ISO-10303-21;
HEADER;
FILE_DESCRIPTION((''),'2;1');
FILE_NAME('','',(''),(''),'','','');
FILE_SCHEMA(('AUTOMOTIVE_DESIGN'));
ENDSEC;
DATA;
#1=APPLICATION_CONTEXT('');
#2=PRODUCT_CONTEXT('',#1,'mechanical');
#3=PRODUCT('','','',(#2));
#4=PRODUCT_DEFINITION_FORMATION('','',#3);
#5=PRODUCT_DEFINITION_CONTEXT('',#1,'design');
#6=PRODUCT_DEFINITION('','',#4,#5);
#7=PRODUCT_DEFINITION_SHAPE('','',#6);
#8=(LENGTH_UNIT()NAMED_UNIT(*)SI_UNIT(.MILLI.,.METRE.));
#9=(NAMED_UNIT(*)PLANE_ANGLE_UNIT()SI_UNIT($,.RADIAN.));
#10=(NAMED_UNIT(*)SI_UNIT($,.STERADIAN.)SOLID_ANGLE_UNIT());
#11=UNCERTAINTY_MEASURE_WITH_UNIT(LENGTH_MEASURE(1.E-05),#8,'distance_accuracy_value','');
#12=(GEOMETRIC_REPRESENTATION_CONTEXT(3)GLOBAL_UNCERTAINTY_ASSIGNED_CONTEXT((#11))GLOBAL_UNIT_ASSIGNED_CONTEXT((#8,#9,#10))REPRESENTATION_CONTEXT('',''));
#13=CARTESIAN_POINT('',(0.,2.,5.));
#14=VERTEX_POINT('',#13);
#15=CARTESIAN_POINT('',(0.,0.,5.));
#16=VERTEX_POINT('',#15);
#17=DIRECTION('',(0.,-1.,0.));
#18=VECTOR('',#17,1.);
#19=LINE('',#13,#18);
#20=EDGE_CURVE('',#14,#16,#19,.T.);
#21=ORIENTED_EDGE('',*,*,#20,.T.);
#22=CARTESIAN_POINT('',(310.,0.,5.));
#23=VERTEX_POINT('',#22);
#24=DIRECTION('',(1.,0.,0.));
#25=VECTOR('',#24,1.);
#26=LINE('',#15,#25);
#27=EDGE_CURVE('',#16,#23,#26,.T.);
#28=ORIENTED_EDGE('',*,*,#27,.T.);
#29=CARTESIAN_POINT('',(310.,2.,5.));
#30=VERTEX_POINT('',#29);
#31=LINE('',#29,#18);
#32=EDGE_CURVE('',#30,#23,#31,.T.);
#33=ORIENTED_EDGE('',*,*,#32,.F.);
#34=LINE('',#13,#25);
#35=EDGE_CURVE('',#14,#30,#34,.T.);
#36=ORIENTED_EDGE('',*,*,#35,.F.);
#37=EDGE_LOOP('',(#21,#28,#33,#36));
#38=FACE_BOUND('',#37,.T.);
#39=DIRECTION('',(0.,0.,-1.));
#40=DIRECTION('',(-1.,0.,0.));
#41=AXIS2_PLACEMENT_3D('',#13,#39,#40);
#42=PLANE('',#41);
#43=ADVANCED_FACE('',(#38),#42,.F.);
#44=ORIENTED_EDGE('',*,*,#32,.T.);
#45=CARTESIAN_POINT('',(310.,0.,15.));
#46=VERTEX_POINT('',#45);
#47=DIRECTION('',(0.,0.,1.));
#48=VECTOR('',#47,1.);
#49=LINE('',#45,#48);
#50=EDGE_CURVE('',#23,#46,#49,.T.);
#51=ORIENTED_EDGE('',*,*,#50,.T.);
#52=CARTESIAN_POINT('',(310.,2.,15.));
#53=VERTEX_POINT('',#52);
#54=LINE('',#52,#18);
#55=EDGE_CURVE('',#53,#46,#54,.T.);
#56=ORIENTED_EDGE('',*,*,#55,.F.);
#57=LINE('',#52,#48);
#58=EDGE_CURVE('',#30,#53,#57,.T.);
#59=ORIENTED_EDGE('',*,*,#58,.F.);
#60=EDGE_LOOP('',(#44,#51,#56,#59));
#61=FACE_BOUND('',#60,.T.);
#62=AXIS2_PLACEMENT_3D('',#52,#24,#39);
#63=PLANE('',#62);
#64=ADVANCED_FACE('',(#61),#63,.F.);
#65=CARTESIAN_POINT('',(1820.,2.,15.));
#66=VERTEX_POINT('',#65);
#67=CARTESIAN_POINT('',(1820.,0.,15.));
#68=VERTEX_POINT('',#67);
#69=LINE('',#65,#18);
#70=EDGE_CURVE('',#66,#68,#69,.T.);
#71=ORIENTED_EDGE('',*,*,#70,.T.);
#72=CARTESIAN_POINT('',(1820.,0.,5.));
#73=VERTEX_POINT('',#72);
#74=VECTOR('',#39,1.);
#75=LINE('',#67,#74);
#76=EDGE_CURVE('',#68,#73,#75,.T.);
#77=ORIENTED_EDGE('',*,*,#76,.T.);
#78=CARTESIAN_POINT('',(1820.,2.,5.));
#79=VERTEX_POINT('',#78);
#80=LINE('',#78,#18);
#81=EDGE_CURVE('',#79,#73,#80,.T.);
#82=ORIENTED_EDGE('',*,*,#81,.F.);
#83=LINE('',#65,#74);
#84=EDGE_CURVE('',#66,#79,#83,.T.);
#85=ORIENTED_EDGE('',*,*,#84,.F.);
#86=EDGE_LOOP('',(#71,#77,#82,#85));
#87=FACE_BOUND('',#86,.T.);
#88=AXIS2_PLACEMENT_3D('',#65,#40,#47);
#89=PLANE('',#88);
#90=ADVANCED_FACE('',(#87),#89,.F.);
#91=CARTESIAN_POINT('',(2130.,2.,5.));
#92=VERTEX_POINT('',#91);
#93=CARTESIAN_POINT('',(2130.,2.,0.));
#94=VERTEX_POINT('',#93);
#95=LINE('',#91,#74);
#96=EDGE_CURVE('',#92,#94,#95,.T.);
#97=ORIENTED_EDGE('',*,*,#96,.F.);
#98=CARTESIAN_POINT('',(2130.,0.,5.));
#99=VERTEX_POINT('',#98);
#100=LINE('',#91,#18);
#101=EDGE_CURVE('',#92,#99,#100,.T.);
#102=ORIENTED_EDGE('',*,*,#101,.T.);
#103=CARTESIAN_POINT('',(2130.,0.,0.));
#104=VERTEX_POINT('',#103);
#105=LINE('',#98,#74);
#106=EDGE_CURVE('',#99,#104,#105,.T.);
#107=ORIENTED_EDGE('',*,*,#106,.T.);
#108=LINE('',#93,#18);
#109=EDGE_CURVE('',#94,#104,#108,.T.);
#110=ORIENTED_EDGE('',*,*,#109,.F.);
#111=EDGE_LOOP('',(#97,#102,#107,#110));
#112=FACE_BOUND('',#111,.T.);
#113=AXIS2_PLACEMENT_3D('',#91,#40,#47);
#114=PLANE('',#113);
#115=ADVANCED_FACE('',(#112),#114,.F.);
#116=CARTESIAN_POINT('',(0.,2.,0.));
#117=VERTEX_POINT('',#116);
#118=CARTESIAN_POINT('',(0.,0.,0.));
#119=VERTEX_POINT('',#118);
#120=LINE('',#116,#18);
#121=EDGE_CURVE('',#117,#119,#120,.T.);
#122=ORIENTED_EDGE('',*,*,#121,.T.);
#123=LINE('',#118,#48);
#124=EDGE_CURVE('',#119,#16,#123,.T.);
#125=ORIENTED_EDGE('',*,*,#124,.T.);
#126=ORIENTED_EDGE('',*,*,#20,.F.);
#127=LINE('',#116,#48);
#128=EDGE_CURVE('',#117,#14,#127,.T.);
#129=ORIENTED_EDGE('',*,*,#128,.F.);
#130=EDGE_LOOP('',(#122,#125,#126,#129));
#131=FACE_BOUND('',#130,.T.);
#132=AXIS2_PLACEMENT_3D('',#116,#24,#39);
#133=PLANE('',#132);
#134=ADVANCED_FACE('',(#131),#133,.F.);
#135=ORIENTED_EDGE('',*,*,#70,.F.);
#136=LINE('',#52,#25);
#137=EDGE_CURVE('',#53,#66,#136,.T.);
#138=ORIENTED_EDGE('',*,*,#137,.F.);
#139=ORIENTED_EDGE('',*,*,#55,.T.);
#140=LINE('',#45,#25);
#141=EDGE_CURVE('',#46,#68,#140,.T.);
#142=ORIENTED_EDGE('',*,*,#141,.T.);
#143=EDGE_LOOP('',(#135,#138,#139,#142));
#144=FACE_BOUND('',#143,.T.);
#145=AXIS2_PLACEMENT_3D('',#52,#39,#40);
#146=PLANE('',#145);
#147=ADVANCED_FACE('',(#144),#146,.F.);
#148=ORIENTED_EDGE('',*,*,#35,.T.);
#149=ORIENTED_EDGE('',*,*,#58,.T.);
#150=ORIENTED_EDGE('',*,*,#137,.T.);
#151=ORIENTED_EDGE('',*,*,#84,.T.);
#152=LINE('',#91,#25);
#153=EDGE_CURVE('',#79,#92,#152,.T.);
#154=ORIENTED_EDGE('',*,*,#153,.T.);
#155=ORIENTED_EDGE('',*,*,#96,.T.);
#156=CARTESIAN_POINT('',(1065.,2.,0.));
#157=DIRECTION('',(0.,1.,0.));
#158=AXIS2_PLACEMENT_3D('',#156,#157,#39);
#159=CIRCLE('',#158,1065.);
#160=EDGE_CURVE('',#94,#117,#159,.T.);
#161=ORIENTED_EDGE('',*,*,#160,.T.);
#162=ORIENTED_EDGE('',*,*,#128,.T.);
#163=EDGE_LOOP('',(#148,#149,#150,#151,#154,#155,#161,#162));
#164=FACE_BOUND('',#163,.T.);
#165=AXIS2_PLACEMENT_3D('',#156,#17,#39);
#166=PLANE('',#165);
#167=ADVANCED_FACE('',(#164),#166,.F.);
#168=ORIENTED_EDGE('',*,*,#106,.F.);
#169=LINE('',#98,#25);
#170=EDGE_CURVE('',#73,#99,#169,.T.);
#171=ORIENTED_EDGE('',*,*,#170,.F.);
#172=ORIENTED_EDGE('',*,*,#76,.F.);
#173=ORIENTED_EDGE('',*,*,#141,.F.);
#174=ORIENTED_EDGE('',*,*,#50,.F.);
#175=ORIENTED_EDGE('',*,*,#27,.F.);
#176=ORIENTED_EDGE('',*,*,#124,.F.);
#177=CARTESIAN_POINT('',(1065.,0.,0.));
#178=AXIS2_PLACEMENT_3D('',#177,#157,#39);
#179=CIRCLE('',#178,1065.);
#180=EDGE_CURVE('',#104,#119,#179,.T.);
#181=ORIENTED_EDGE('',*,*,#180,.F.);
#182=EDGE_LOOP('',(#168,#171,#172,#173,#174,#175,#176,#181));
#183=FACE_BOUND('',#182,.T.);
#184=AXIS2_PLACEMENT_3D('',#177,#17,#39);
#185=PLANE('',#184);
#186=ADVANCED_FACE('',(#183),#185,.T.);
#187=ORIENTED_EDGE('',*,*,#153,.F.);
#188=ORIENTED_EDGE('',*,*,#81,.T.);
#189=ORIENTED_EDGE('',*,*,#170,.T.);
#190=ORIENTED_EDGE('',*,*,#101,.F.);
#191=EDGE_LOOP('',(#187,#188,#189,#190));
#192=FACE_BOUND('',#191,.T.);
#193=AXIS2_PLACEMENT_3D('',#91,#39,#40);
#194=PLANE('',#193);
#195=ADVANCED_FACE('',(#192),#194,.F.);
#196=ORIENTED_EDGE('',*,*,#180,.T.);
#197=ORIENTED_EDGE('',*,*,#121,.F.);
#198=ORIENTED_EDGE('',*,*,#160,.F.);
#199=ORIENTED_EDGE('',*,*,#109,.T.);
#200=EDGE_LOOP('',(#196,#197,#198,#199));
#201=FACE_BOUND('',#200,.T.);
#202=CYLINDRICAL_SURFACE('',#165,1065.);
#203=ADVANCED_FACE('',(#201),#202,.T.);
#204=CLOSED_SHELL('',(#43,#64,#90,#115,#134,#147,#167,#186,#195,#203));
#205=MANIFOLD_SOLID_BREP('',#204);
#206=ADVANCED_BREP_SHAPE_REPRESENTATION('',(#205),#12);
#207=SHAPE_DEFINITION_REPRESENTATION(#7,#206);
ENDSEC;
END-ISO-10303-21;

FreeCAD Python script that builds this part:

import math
import FreeCAD as App
import Part
import Sketcher
from FreeCAD import Vector

doc = App.newDocument("Part")
body = doc.addObject("PartDesign::Body", "Body")

sketch1 = doc.addObject("Sketcher::SketchObject", "Sketch")
body.addObject(sketch1)
sketch1.AttachmentSupport = (doc.XZ_Plane, [""])
sketch1.MapMode = "FlatFace"
sketch1.addGeometry(Part.LineSegment(Vector(0, 0, 0), Vector(0, 5, 0)), False)
sketch1.addGeometry(Part.LineSegment(Vector(0, 5, 0), Vector(310, 5, 0)), False)
sketch1.addGeometry(Part.LineSegment(Vector(310, 5, 0), Vector(310, 15, 0)), False)
sketch1.addGeometry(Part.LineSegment(Vector(310, 15, 0), Vector(1820, 15, 0)), False)
sketch1.addGeometry(Part.LineSegment(Vector(1820, 15, 0), Vector(1820, 5, 0)), False)
sketch1.addGeometry(Part.LineSegment(Vector(1820, 5, 0), Vector(2130, 5, 0)), False)
sketch1.addGeometry(Part.LineSegment(Vector(2130, 5, 0), Vector(2130, 0, 0)), False)
sketch1.addGeometry(Part.ArcOfCircle(Part.Circle(Vector(1065, 0, 0), Vector(0, 0, 1), 1065), math.radians(180), math.radians(360)), False)
sketch1.addConstraint(Sketcher.Constraint("Coincident", 0, 2, 1, 1))
sketch1.addConstraint(Sketcher.Constraint("Coincident", 1, 2, 2, 1))
sketch1.addConstraint(Sketcher.Constraint("Coincident", 2, 2, 3, 1))
sketch1.addConstraint(Sketcher.Constraint("Coincident", 3, 2, 4, 1))
sketch1.addConstraint(Sketcher.Constraint("Coincident", 4, 2, 5, 1))
sketch1.addConstraint(Sketcher.Constraint("Coincident", 5, 2, 6, 1))
sketch1.addConstraint(Sketcher.Constraint("Tangent", 6, 2, 7, 2))
sketch1.addConstraint(Sketcher.Constraint("Tangent", 7, 1, 0, 1))
sketch1.addConstraint(Sketcher.Constraint("Vertical", 0))
sketch1.addConstraint(Sketcher.Constraint("Horizontal", 1))
sketch1.addConstraint(Sketcher.Constraint("Vertical", 2))
sketch1.addConstraint(Sketcher.Constraint("Horizontal", 3))
sketch1.addConstraint(Sketcher.Constraint("Vertical", 4))
sketch1.addConstraint(Sketcher.Constraint("Horizontal", 5))
sketch1.addConstraint(Sketcher.Constraint("Vertical", 6))
sketch1.addConstraint(Sketcher.Constraint("PointOnObject", 7, 3, -1))
sketch1.addConstraint(Sketcher.Constraint("PointOnObject", 0, 2, -2))
sketch1.addConstraint(Sketcher.Constraint("Horizontal", 1, 2, 4, 2))
sketch1.addConstraint(Sketcher.Constraint("Equal", 1, 5))
sketch1.addConstraint(Sketcher.Constraint("Radius", 7, 1065.0))
sketch1.addConstraint(Sketcher.Constraint("DistanceX", 1, 1, 1, 2, 310.0))
sketch1.addConstraint(Sketcher.Constraint("DistanceY", 0, 1, 0, 2, 5.0))
sketch1.addConstraint(Sketcher.Constraint("DistanceY", 2, 1, 2, 2, 10.0))
pad1 = doc.addObject("PartDesign::Pad", "Pad")
body.addObject(pad1)
pad1.Profile = sketch1
pad1.Length = 2
pad1.Reversed = True

doc.recompute()
